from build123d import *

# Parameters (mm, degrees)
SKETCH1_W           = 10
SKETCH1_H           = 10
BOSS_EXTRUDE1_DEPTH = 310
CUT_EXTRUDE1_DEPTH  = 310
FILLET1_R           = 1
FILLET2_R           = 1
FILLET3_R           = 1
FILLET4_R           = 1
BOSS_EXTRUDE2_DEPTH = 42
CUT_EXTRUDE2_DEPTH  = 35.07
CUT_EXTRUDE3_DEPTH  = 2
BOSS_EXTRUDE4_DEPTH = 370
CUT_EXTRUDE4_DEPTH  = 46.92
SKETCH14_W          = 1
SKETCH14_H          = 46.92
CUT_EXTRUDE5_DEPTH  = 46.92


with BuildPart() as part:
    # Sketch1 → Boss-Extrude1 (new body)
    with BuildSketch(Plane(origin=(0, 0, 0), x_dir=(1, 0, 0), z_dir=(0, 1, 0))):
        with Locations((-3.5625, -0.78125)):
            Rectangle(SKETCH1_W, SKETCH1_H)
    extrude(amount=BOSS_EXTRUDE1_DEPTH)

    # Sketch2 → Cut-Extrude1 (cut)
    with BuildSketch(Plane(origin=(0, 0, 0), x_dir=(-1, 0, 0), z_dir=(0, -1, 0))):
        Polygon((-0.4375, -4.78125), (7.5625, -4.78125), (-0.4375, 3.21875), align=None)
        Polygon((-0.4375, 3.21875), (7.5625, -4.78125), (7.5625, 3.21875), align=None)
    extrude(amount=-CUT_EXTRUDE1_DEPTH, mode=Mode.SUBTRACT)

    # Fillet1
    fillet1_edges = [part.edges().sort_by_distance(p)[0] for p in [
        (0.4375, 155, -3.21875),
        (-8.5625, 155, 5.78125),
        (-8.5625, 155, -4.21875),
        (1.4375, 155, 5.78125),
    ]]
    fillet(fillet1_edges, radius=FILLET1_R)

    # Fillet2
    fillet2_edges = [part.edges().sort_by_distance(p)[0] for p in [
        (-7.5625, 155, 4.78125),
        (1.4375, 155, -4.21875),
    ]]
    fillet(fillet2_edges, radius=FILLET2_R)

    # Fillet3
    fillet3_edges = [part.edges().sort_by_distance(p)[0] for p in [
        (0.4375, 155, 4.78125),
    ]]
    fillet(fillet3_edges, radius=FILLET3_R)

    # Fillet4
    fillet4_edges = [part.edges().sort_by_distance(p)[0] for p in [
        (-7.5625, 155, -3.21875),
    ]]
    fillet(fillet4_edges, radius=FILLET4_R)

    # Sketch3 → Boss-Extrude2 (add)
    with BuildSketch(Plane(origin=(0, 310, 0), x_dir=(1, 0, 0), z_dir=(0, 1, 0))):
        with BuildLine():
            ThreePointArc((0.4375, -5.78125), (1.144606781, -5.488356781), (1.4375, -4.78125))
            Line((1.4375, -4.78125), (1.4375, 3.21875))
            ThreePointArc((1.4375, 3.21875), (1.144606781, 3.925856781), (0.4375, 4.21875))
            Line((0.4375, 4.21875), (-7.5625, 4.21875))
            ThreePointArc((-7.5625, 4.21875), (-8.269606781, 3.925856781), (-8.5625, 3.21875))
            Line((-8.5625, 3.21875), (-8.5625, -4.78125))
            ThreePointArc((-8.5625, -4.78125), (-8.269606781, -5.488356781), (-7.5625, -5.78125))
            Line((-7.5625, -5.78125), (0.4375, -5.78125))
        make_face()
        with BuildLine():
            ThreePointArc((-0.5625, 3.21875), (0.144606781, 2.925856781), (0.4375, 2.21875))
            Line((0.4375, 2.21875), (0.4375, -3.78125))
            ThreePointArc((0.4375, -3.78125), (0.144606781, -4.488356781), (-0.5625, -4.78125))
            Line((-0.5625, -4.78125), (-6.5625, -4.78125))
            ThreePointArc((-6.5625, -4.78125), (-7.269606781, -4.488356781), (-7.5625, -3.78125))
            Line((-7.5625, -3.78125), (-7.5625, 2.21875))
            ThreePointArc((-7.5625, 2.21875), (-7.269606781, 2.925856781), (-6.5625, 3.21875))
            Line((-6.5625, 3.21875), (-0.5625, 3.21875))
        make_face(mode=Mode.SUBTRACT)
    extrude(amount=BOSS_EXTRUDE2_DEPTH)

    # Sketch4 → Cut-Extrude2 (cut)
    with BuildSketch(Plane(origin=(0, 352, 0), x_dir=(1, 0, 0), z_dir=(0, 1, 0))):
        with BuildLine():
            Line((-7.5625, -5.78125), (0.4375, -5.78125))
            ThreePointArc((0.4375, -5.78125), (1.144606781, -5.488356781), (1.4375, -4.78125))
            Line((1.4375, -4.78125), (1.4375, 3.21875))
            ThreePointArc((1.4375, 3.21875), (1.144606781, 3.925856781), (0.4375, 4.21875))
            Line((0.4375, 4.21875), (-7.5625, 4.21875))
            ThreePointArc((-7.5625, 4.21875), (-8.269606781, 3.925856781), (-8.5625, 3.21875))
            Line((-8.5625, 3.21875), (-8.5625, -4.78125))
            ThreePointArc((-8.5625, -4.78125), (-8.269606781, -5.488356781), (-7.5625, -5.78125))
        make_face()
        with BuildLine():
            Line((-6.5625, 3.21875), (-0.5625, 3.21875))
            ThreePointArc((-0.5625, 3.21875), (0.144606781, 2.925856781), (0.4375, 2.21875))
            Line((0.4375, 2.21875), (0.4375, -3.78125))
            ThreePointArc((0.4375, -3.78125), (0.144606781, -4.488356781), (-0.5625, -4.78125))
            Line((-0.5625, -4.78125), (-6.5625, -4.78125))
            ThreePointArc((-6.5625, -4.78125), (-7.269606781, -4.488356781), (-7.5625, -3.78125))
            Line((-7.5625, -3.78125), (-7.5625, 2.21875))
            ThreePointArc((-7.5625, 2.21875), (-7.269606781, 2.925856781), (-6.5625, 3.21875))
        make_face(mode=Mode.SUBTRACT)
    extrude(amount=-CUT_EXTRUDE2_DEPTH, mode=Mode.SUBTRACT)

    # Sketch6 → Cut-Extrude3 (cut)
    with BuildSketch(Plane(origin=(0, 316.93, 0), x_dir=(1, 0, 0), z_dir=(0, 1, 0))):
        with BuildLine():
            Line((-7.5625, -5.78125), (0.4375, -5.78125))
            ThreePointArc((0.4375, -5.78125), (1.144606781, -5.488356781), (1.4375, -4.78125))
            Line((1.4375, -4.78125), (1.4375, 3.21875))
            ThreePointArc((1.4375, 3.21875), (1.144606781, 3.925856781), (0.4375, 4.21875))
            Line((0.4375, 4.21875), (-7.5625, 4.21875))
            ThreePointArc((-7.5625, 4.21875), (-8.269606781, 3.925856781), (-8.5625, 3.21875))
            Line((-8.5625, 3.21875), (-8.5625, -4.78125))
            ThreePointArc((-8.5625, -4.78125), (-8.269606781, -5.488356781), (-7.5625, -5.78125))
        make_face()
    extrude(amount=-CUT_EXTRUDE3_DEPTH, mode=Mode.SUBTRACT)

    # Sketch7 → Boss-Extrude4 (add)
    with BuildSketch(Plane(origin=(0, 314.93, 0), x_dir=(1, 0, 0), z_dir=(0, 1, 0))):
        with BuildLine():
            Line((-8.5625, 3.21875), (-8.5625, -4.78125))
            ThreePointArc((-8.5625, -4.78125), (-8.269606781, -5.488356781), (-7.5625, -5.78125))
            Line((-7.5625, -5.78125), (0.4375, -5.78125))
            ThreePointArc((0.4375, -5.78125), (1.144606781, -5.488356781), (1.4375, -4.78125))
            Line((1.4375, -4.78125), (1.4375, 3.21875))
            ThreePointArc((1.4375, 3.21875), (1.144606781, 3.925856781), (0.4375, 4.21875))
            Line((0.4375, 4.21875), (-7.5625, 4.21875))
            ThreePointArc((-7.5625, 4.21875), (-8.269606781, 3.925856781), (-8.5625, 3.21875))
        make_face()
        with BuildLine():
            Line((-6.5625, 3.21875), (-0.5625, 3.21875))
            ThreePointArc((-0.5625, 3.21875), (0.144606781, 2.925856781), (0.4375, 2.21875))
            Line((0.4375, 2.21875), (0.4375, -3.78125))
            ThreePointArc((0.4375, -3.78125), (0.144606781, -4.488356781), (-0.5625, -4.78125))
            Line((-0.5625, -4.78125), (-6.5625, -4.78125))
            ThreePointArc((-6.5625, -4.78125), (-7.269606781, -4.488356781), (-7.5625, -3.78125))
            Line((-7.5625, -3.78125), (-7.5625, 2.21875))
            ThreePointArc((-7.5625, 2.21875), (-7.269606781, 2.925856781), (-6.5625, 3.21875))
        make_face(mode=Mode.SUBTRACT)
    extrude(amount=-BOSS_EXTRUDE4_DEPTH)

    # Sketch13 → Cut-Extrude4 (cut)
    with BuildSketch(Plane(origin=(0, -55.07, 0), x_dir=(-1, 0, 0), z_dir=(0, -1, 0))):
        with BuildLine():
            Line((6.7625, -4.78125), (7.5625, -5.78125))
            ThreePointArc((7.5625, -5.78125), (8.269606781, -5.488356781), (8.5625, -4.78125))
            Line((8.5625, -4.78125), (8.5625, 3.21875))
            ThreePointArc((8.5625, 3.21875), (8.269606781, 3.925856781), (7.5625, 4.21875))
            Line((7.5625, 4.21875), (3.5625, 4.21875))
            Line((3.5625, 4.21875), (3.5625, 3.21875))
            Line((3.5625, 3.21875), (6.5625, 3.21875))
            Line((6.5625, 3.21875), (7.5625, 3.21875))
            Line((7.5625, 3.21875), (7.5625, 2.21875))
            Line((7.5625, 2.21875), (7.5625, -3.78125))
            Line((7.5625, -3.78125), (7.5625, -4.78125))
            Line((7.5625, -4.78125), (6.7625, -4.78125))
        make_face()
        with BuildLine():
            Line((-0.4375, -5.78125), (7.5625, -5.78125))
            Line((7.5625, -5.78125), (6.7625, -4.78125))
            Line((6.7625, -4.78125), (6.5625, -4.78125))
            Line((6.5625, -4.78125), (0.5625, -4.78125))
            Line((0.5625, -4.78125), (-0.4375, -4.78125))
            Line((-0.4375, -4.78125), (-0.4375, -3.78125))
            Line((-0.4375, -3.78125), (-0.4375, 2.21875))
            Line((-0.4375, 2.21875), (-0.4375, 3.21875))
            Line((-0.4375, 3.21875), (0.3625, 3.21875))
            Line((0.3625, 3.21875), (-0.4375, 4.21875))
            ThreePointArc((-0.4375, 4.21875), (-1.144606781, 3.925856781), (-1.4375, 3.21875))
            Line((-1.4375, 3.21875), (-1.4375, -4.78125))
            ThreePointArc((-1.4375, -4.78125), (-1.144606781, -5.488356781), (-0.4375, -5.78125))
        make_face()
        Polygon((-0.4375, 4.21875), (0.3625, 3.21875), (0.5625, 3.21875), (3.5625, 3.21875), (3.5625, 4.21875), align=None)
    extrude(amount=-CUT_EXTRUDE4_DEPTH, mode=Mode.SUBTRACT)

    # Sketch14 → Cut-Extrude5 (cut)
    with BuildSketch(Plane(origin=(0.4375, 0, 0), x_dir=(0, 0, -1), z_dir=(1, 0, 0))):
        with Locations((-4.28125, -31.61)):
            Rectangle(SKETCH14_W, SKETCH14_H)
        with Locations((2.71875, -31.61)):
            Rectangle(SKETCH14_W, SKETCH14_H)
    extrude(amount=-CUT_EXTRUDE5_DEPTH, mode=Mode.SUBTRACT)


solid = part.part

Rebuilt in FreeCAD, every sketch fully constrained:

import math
import FreeCAD as App
import Part
import Sketcher

V = App.Vector
Q = App.Units.Quantity


def edges_at(feature, points):
    """Names of the edges that pass closest to the given points."""
    edges = feature.Shape.Edges
    near = lambda p: min(range(len(edges)), key=lambda i: edges[i].distToShape(Part.Vertex(*p))[0])
    return sorted({f"Edge{near(p) + 1}" for p in points})

doc = App.newDocument("Part")
body = doc.addObject("PartDesign::Body", "Body")

# Sketch on XZ plane
sketch1 = body.newObject("Sketcher::SketchObject", "Sketch")
sketch1.AttachmentSupport = (doc.getObject("XZ_Plane"), [""])
sketch1.MapMode = "FlatFace"
sketch1.addGeometry([
    Part.LineSegment(V(-9, -4, 0), V(-9, 6, 0)),
    Part.LineSegment(V(-9, 6, 0), V(1, 6, 0)),
    Part.LineSegment(V(1, 6, 0), V(1, -4, 0)),
    Part.LineSegment(V(1, -4, 0), V(-9, -4, 0)),
], False)
sketch1.addConstraint([
    Sketcher.Constraint("Coincident", 0, 2, 1, 1),
    Sketcher.Constraint("Coincident", 1, 2, 2, 1),
    Sketcher.Constraint("Coincident", 2, 2, 3, 1),
    Sketcher.Constraint("Coincident", 3, 2, 0, 1),
    Sketcher.Constraint("Vertical", 0),
    Sketcher.Constraint("Horizontal", 1),
    Sketcher.Constraint("Vertical", 2),
    Sketcher.Constraint("Horizontal", 3),
    Sketcher.Constraint("Equal", 3, 0),
    Sketcher.Constraint("DistanceX", 1, 1, 1, 2, Q("10 mm")),
    Sketcher.Constraint("DistanceX", 0, 2, -1, 1, Q("8.5625 mm")),
    Sketcher.Constraint("DistanceY", -1, 1, 0, 2, Q("5.78125 mm")),
])
pad1 = body.newObject("PartDesign::Pad", "Pad")
pad1.Profile = sketch1
pad1.Length = 310
pad1.Reversed = True

# Sketch on XZ plane
sketch2 = body.newObject("Sketcher::SketchObject", "Sketch001")
sketch2.AttachmentSupport = (doc.getObject("XZ_Plane"), [""])
sketch2.MapMode = "FlatFace"
sketch2.addGeometry([
    Part.LineSegment(V(0, 5, 0), V(-8, 5, 0)),
    Part.LineSegment(V(-8, 5, 0), V(-8, -3, 0)),
    Part.LineSegment(V(-8, -3, 0), V(0, -3, 0)),
    Part.LineSegment(V(0, -3, 0), V(0, 5, 0)),
], False)
sketch2.addConstraint([
    Sketcher.Constraint("Coincident", 0, 2, 1, 1),
    Sketcher.Constraint("Coincident", 1, 2, 2, 1),
    Sketcher.Constraint("Coincident", 2, 2, 3, 1),
    Sketcher.Constraint("Coincident", 3, 2, 0, 1),
    Sketcher.Constraint("Horizontal", 0),
    Sketcher.Constraint("Vertical", 1),
    Sketcher.Constraint("Horizontal", 2),
    Sketcher.Constraint("Vertical", 3),
    Sketcher.Constraint("Equal", 2, 1),
    Sketcher.Constraint("DistanceX", 0, 2, 0, 1, Q("8 mm")),
    Sketcher.Constraint("DistanceX", 0, 2, -1, 1, Q("7.5625 mm")),
    Sketcher.Constraint("DistanceY", -1, 1, 0, 2, Q("4.78125 mm")),
])
pocket1 = body.newObject("PartDesign::Pocket", "Pocket")
pocket1.Profile = sketch2
pocket1.Length = 310
doc.recompute()

fillet = body.newObject("PartDesign::Fillet", "Fillet")
fillet.Base = (pocket1, edges_at(pocket1, [
    (0.438, 155, -3.219),
    (-8.562, 155, 5.781),
    (-8.562, 155, -4.219),
    (1.438, 155, 5.781),
]))
fillet.Radius = 1
doc.recompute()

fillet2 = body.newObject("PartDesign::Fillet", "Fillet001")
fillet2.Base = (fillet, edges_at(fillet, [(-7.562, 155, 4.781), (1.438, 155, -4.219)]))
fillet2.Radius = 1
doc.recompute()

fillet3 = body.newObject("PartDesign::Fillet", "Fillet002")
fillet3.Base = (fillet2, edges_at(fillet2, [(0.438, 155, 4.781)]))
fillet3.Radius = 1
doc.recompute()

fillet4 = body.newObject("PartDesign::Fillet", "Fillet003")
fillet4.Base = (fillet3, edges_at(fillet3, [(-7.562, 155, -3.219)]))
fillet4.Radius = 1

# Sketch on XZ plane
sketch3 = body.newObject("Sketcher::SketchObject", "Sketch002")
sketch3.AttachmentSupport = (doc.getObject("XZ_Plane"), [""])
sketch3.MapMode = "FlatFace"
sketch3.AttachmentOffset = App.Placement(V(0, 0, -310), App.Rotation())
sketch3.addGeometry([
    Part.ArcOfCircle(Part.Circle(V(0.4, 4.8, 0), V(0, 0, 1), 1), math.radians(0), math.radians(90)),  # 0
    Part.LineSegment(V(1.4, 4.8, 0), V(1.4, -3.2, 0)),  # 1
    Part.ArcOfCircle(Part.Circle(V(0.4, -3.2, 0), V(0, 0, 1), 1), math.radians(-90), math.radians(0)),  # 2
    Part.LineSegment(V(0.4, -4.2, 0), V(-7.6, -4.2, 0)),  # 3
    Part.ArcOfCircle(Part.Circle(V(-7.6, -3.2, 0), V(0, 0, 1), 1), math.radians(-180), math.radians(-90)),  # 4
    Part.LineSegment(V(-8.6, -3.2, 0), V(-8.6, 4.8, 0)),  # 5
    Part.ArcOfCircle(Part.Circle(V(-7.6, 4.8, 0), V(0, 0, 1), 1), math.radians(90), math.radians(180)),  # 6
    Part.LineSegment(V(-7.6, 5.8, 0), V(0.4, 5.8, 0)),  # 7
    Part.LineSegment(V(-6.6, -3.2, 0), V(-0.6, -3.2, 0)),  # 8
    Part.ArcOfCircle(Part.Circle(V(-0.6, -2.2, 0), V(0, 0, 1), 1), math.radians(-90), math.radians(0)),  # 9
    Part.LineSegment(V(0.4, -2.2, 0), V(0.4, 3.8, 0)),  # 10
    Part.ArcOfCircle(Part.Circle(V(-0.6, 3.8, 0), V(0, 0, 1), 1), math.radians(0), math.radians(90)),  # 11
    Part.LineSegment(V(-0.6, 4.8, 0), V(-6.6, 4.8, 0)),  # 12
    Part.ArcOfCircle(Part.Circle(V(-6.6, 3.8, 0), V(0, 0, 1), 1), math.radians(90), math.radians(180)),  # 13
    Part.LineSegment(V(-7.6, 3.8, 0), V(-7.6, -2.2, 0)),  # 14
    Part.ArcOfCircle(Part.Circle(V(-6.6, -2.2, 0), V(0, 0, 1), 1), math.radians(-180), math.radians(-90)),  # 15
], False)
sketch3.addConstraint([
    Sketcher.Constraint("Tangent", 0, 1, 1, 1),
    Sketcher.Constraint("Tangent", 1, 2, 2, 2),
    Sketcher.Constraint("Tangent", 2, 1, 3, 1),
    Sketcher.Constraint("Tangent", 3, 2, 4, 2),
    Sketcher.Constraint("Tangent", 4, 1, 5, 1),
    Sketcher.Constraint("Tangent", 5, 2, 6, 2),
    Sketcher.Constraint("Tangent", 6, 1, 7, 1),
    Sketcher.Constraint("Tangent", 7, 2, 0, 2),
    Sketcher.Constraint("Tangent", 8, 2, 9, 1),
    Sketcher.Constraint("Tangent", 9, 2, 10, 1),
    Sketcher.Constraint("Tangent", 10, 2, 11, 1),
    Sketcher.Constraint("Tangent", 11, 2, 12, 1),
    Sketcher.Constraint("Tangent", 12, 2, 13, 1),
    Sketcher.Constraint("Tangent", 13, 2, 14, 1),
    Sketcher.Constraint("Tangent", 14, 2, 15, 1),
    Sketcher.Constraint("Tangent", 15, 2, 8, 1),
    Sketcher.Constraint("Vertical", 1),
    Sketcher.Constraint("Horizontal", 3),
    Sketcher.Constraint("Vertical", 5),
    Sketcher.Constraint("Horizontal", 7),
    Sketcher.Constraint("Horizontal", 8),
    Sketcher.Constraint("Vertical", 10),
    Sketcher.Constraint("Horizontal", 12),
    Sketcher.Constraint("Vertical", 14),
    Sketcher.Constraint("Equal", 0, 2),
    Sketcher.Constraint("Equal", 2, 4),
    Sketcher.Constraint("Equal", 4, 6),
    Sketcher.Constraint("Equal", 6, 9),
    Sketcher.Constraint("Equal", 9, 11),
    Sketcher.Constraint("Equal", 11, 13),
    Sketcher.Constraint("Equal", 13, 15),
    Sketcher.Constraint("Horizontal", 4, 1, 8, 2),
    Sketcher.Constraint("Horizontal", 5, 2, 11, 2),
    Sketcher.Constraint("Vertical", 7, 2, 9, 2),
    Sketcher.Constraint("Vertical", 6, 1, 13, 2),
    Sketcher.Constraint("Equal", 7, 1),
    Sketcher.Constraint("Radius", 0, Q("1 mm")),
    Sketcher.Constraint("DistanceX", 3, 2, 3, 1, Q("8 mm")),
    Sketcher.Constraint("DistanceX", -1, 1, 0, 3, Q("0.4375 mm")),
    Sketcher.Constraint("DistanceY", -1, 1, 0, 3, Q("4.78125 mm")),
])
pad2 = body.newObject("PartDesign::Pad", "Pad001")
pad2.Profile = sketch3
pad2.Length = 42
pad2.Reversed = True

# Sketch on XZ plane
sketch4 = body.newObject("Sketcher::SketchObject", "Sketch003")
sketch4.AttachmentSupport = (doc.getObject("XZ_Plane"), [""])
sketch4.MapMode = "FlatFace"
sketch4.AttachmentOffset = App.Placement(V(0, 0, -352), App.Rotation())
sketch4.addGeometry([
    Part.LineSegment(V(-7.6, 5.8, 0), V(0.4, 5.8, 0)),  # 0
    Part.ArcOfCircle(Part.Circle(V(0.4, 4.8, 0), V(0, 0, 1), 1), math.radians(0), math.radians(90)),  # 1
    Part.LineSegment(V(1.4, 4.8, 0), V(1.4, -3.2, 0)),  # 2
    Part.ArcOfCircle(Part.Circle(V(0.4, -3.2, 0), V(0, 0, 1), 1), math.radians(-90), math.radians(0)),  # 3
    Part.LineSegment(V(0.4, -4.2, 0), V(-7.6, -4.2, 0)),  # 4
    Part.ArcOfCircle(Part.Circle(V(-7.6, -3.2, 0), V(0, 0, 1), 1), math.radians(-180), math.radians(-90)),  # 5
    Part.LineSegment(V(-8.6, -3.2, 0), V(-8.6, 4.8, 0)),  # 6
    Part.ArcOfCircle(Part.Circle(V(-7.6, 4.8, 0), V(0, 0, 1), 1), math.radians(90), math.radians(180)),  # 7
    Part.ArcOfCircle(Part.Circle(V(-6.6, -2.2, 0), V(0, 0, 1), 1), math.radians(-180), math.radians(-90)),  # 8
    Part.LineSegment(V(-6.6, -3.2, 0), V(-0.6, -3.2, 0)),  # 9
    Part.ArcOfCircle(Part.Circle(V(-0.6, -2.2, 0), V(0, 0, 1), 1), math.radians(-90), math.radians(0)),  # 10
    Part.LineSegment(V(0.4, -2.2, 0), V(0.4, 3.8, 0)),  # 11
    Part.ArcOfCircle(Part.Circle(V(-0.6, 3.8, 0), V(0, 0, 1), 1), math.radians(0), math.radians(90)),  # 12
    Part.LineSegment(V(-0.6, 4.8, 0), V(-6.6, 4.8, 0)),  # 13
    Part.ArcOfCircle(Part.Circle(V(-6.6, 3.8, 0), V(0, 0, 1), 1), math.radians(90), math.radians(180)),  # 14
    Part.LineSegment(V(-7.6, 3.8, 0), V(-7.6, -2.2, 0)),  # 15
], False)
sketch4.addConstraint([
    Sketcher.Constraint("Tangent", 0, 2, 1, 2),
    Sketcher.Constraint("Tangent", 1, 1, 2, 1),
    Sketcher.Constraint("Tangent", 2, 2, 3, 2),
    Sketcher.Constraint("Tangent", 3, 1, 4, 1),
    Sketcher.Constraint("Tangent", 4, 2, 5, 2),
    Sketcher.Constraint("Tangent", 5, 1, 6, 1),
    Sketcher.Constraint("Tangent", 6, 2, 7, 2),
    Sketcher.Constraint("Tangent", 7, 1, 0, 1),
    Sketcher.Constraint("Tangent", 8, 2, 9, 1),
    Sketcher.Constraint("Tangent", 9, 2, 10, 1),
    Sketcher.Constraint("Tangent", 10, 2, 11, 1),
    Sketcher.Constraint("Tangent", 11, 2, 12, 1),
    Sketcher.Constraint("Tangent", 12, 2, 13, 1),
    Sketcher.Constraint("Tangent", 13, 2, 14, 1),
    Sketcher.Constraint("Tangent", 14, 2, 15, 1),
    Sketcher.Constraint("Tangent", 15, 2, 8, 1),
    Sketcher.Constraint("Horizontal", 0),
    Sketcher.Constraint("Vertical", 2),
    Sketcher.Constraint("Horizontal", 4),
    Sketcher.Constraint("Vertical", 6),
    Sketcher.Constraint("Horizontal", 9),
    Sketcher.Constraint("Vertical", 11),
    Sketcher.Constraint("Horizontal", 13),
    Sketcher.Constraint("Vertical", 15),
    Sketcher.Constraint("Equal", 1, 3),
    Sketcher.Constraint("Equal", 3, 5),
    Sketcher.Constraint("Equal", 5, 7),
    Sketcher.Constraint("Equal", 7, 8),
    Sketcher.Constraint("Equal", 8, 10),
    Sketcher.Constraint("Equal", 10, 12),
    Sketcher.Constraint("Equal", 12, 14),
    Sketcher.Constraint("Horizontal", 5, 1, 8, 2),
    Sketcher.Constraint("Horizontal", 6, 2, 12, 2),
    Sketcher.Constraint("Vertical", 3, 1, 10, 2),
    Sketcher.Constraint("Vertical", 7, 1, 14, 2),
    Sketcher.Constraint("Equal", 4, 2),
    Sketcher.Constraint("Radius", 1, Q("1 mm")),
    Sketcher.Constraint("DistanceX", 0, 1, 0, 2, Q("8 mm")),
    Sketcher.Constraint("DistanceX", -1, 1, 1, 3, Q("0.4375 mm")),
    Sketcher.Constraint("DistanceY", -1, 1, 1, 3, Q("4.78125 mm")),
])
pocket2 = body.newObject("PartDesign::Pocket", "Pocket001")
pocket2.Profile = sketch4
pocket2.Length = 35.07
pocket2.Reversed = True

# Sketch on XZ plane
sketch5 = body.newObject("Sketcher::SketchObject", "Sketch004")
sketch5.AttachmentSupport = (doc.getObject("XZ_Plane"), [""])
sketch5.MapMode = "FlatFace"
sketch5.AttachmentOffset = App.Placement(V(0, 0, -316.93), App.Rotation())
sketch5.addGeometry([
    Part.LineSegment(V(-7.6, 5.8, 0), V(0.4, 5.8, 0)),  # 0
    Part.ArcOfCircle(Part.Circle(V(0.4, 4.8, 0), V(0, 0, 1), 1), math.radians(0), math.radians(90)),  # 1
    Part.LineSegment(V(1.4, 4.8, 0), V(1.4, -3.2, 0)),  # 2
    Part.ArcOfCircle(Part.Circle(V(0.4, -3.2, 0), V(0, 0, 1), 1), math.radians(-90), math.radians(0)),  # 3
    Part.LineSegment(V(0.4, -4.2, 0), V(-7.6, -4.2, 0)),  # 4
    Part.ArcOfCircle(Part.Circle(V(-7.6, -3.2, 0), V(0, 0, 1), 1), math.radians(-180), math.radians(-90)),  # 5
    Part.LineSegment(V(-8.6, -3.2, 0), V(-8.6, 4.8, 0)),  # 6
    Part.ArcOfCircle(Part.Circle(V(-7.6, 4.8, 0), V(0, 0, 1), 1), math.radians(90), math.radians(180)),  # 7
], False)
sketch5.addConstraint([
    Sketcher.Constraint("Tangent", 0, 2, 1, 2),
    Sketcher.Constraint("Tangent", 1, 1, 2, 1),
    Sketcher.Constraint("Tangent", 2, 2, 3, 2),
    Sketcher.Constraint("Tangent", 3, 1, 4, 1),
    Sketcher.Constraint("Tangent", 4, 2, 5, 2),
    Sketcher.Constraint("Tangent", 5, 1, 6, 1),
    Sketcher.Constraint("Tangent", 6, 2, 7, 2),
    Sketcher.Constraint("Tangent", 7, 1, 0, 1),
    Sketcher.Constraint("Horizontal", 0),
    Sketcher.Constraint("Vertical", 2),
    Sketcher.Constraint("Horizontal", 4),
    Sketcher.Constraint("Vertical", 6),
    Sketcher.Constraint("Equal", 1, 3),
    Sketcher.Constraint("Equal", 3, 5),
    Sketcher.Constraint("Equal", 5, 7),
    Sketcher.Constraint("Equal", 4, 2),
    Sketcher.Constraint("Radius", 1, Q("1 mm")),
    Sketcher.Constraint("DistanceX", 0, 1, 0, 2, Q("8 mm")),
    Sketcher.Constraint("DistanceX", -1, 1, 1, 3, Q("0.4375 mm")),
    Sketcher.Constraint("DistanceY", -1, 1, 1, 3, Q("4.78125 mm")),
])
pocket3 = body.newObject("PartDesign::Pocket", "Pocket002")
pocket3.Profile = sketch5
pocket3.Length = 2
pocket3.Reversed = True

# Sketch on XZ plane
sketch6 = body.newObject("Sketcher::SketchObject", "Sketch005")
sketch6.AttachmentSupport = (doc.getObject("XZ_Plane"), [""])
sketch6.MapMode = "FlatFace"
sketch6.AttachmentOffset = App.Placement(V(0, 0, -314.93), App.Rotation())
sketch6.addGeometry([
    Part.LineSegment(V(-8.6, -3.2, 0), V(-8.6, 4.8, 0)),  # 0
    Part.ArcOfCircle(Part.Circle(V(-7.6, 4.8, 0), V(0, 0, 1), 1), math.radians(90), math.radians(180)),  # 1
    Part.LineSegment(V(-7.6, 5.8, 0), V(0.4, 5.8, 0)),  # 2
    Part.ArcOfCircle(Part.Circle(V(0.4, 4.8, 0), V(0, 0, 1), 1), math.radians(0), math.radians(90)),  # 3
    Part.LineSegment(V(1.4, 4.8, 0), V(1.4, -3.2, 0)),  # 4
    Part.ArcOfCircle(Part.Circle(V(0.4, -3.2, 0), V(0, 0, 1), 1), math.radians(-90), math.radians(0)),  # 5
    Part.LineSegment(V(0.4, -4.2, 0), V(-7.6, -4.2, 0)),  # 6
    Part.ArcOfCircle(Part.Circle(V(-7.6, -3.2, 0), V(0, 0, 1), 1), math.radians(-180), math.radians(-90)),  # 7
    Part.ArcOfCircle(Part.Circle(V(-6.6, -2.2, 0), V(0, 0, 1), 1), math.radians(-180), math.radians(-90)),  # 8
    Part.LineSegment(V(-6.6, -3.2, 0), V(-0.6, -3.2, 0)),  # 9
    Part.ArcOfCircle(Part.Circle(V(-0.6, -2.2, 0), V(0, 0, 1), 1), math.radians(-90), math.radians(0)),  # 10
    Part.LineSegment(V(0.4, -2.2, 0), V(0.4, 3.8, 0)),  # 11
    Part.ArcOfCircle(Part.Circle(V(-0.6, 3.8, 0), V(0, 0, 1), 1), math.radians(0), math.radians(90)),  # 12
    Part.LineSegment(V(-0.6, 4.8, 0), V(-6.6, 4.8, 0)),  # 13
    Part.ArcOfCircle(Part.Circle(V(-6.6, 3.8, 0), V(0, 0, 1), 1), math.radians(90), math.radians(180)),  # 14
    Part.LineSegment(V(-7.6, 3.8, 0), V(-7.6, -2.2, 0)),  # 15
], False)
sketch6.addConstraint([
    Sketcher.Constraint("Tangent", 0, 2, 1, 2),
    Sketcher.Constraint("Tangent", 1, 1, 2, 1),
    Sketcher.Constraint("Tangent", 2, 2, 3, 2),
    Sketcher.Constraint("Tangent", 3, 1, 4, 1),
    Sketcher.Constraint("Tangent", 4, 2, 5, 2),
    Sketcher.Constraint("Tangent", 5, 1, 6, 1),
    Sketcher.Constraint("Tangent", 6, 2, 7, 2),
    Sketcher.Constraint("Tangent", 7, 1, 0, 1),
    Sketcher.Constraint("Tangent", 8, 2, 9, 1),
    Sketcher.Constraint("Tangent", 9, 2, 10, 1),
    Sketcher.Constraint("Tangent", 10, 2, 11, 1),
    Sketcher.Constraint("Tangent", 11, 2, 12, 1),
    Sketcher.Constraint("Tangent", 12, 2, 13, 1),
    Sketcher.Constraint("Tangent", 13, 2, 14, 1),
    Sketcher.Constraint("Tangent", 14, 2, 15, 1),
    Sketcher.Constraint("Tangent", 15, 2, 8, 1),
    Sketcher.Constraint("Vertical", 0),
    Sketcher.Constraint("Horizontal", 2),
    Sketcher.Constraint("Vertical", 4),
    Sketcher.Constraint("Horizontal", 6),
    Sketcher.Constraint("Horizontal", 9),
    Sketcher.Constraint("Vertical", 11),
    Sketcher.Constraint("Horizontal", 13),
    Sketcher.Constraint("Vertical", 15),
    Sketcher.Constraint("Equal", 1, 3),
    Sketcher.Constraint("Equal", 3, 5),
    Sketcher.Constraint("Equal", 5, 7),
    Sketcher.Constraint("Equal", 7, 8),
    Sketcher.Constraint("Equal", 8, 10),
    Sketcher.Constraint("Equal", 10, 12),
    Sketcher.Constraint("Equal", 12, 14),
    Sketcher.Constraint("Horizontal", 7, 1, 8, 2),
    Sketcher.Constraint("Horizontal", 3, 1, 12, 2),
    Sketcher.Constraint("Vertical", 5, 1, 10, 2),
    Sketcher.Constraint("Vertical", 6, 2, 14, 2),
    Sketcher.Constraint("Equal", 6, 0),
    Sketcher.Constraint("Radius", 1, Q("1 mm")),
    Sketcher.Constraint("DistanceX", 2, 1, 2, 2, Q("8 mm")),
    Sketcher.Constraint("DistanceX", 1, 3, -1, 1, Q("7.5625 mm")),
    Sketcher.Constraint("DistanceY", -1, 1, 1, 3, Q("4.78125 mm")),
])
pad3 = body.newObject("PartDesign::Pad", "Pad002")
pad3.Profile = sketch6
pad3.Length = 370

# Sketch on XZ plane
sketch7 = body.newObject("Sketcher::SketchObject", "Sketch006")
sketch7.AttachmentSupport = (doc.getObject("XZ_Plane"), [""])
sketch7.MapMode = "FlatFace"
sketch7.AttachmentOffset = App.Placement(V(0, 0, 55.07), App.Rotation())
sketch7.addGeometry([
    Part.ArcOfCircle(Part.Circle(V(-7.6, 4.8, 0), V(0, 0, 1), 1), math.radians(90), math.radians(180)),  # 0
    Part.LineSegment(V(-8.6, 4.8, 0), V(-8.6, -3.2, 0)),  # 1
    Part.ArcOfCircle(Part.Circle(V(-7.6, -3.2, 0), V(0, 0, 1), 1), math.radians(-180), math.radians(-90)),  # 2
    Part.LineSegment(V(-7.6, -4.2, 0), V(0.4, -4.2, 0)),  # 3
    Part.ArcOfCircle(Part.Circle(V(0.4, -3.2, 0), V(0, 0, 1), 1), math.radians(-90), math.radians(0)),  # 4
    Part.LineSegment(V(1.4, -3.2, 0), V(1.4, 4.8, 0)),  # 5
    Part.ArcOfCircle(Part.Circle(V(0.4, 4.8, 0), V(0, 0, 1), 1), math.radians(0), math.radians(90)),  # 6
    Part.LineSegment(V(0.4, 5.8, 0), V(-7.6, 5.8, 0)),  # 7
    Part.LineSegment(V(-7.6, -3.2, 0), V(-7.6, 4.8, 0)),  # 8
    Part.LineSegment(V(-7.6, 4.8, 0), V(0.4, 4.8, 0)),  # 9
    Part.LineSegment(V(0.4, 4.8, 0), V(0.4, -3.2, 0)),  # 10
    Part.LineSegment(V(0.4, -3.2, 0), V(-7.6, -3.2, 0)),  # 11
], False)
sketch7.addConstraint([
    Sketcher.Constraint("Tangent", 0, 2, 1, 1),
    Sketcher.Constraint("Tangent", 1, 2, 2, 1),
    Sketcher.Constraint("Tangent", 2, 2, 3, 1),
    Sketcher.Constraint("Tangent", 3, 2, 4, 1),
    Sketcher.Constraint("Tangent", 4, 2, 5, 1),
    Sketcher.Constraint("Tangent", 5, 2, 6, 1),
    Sketcher.Constraint("Tangent", 6, 2, 7, 1),
    Sketcher.Constraint("Tangent", 7, 2, 0, 1),
    Sketcher.Constraint("Coincident", 8, 2, 9, 1),
    Sketcher.Constraint("Coincident", 9, 2, 10, 1),
    Sketcher.Constraint("Coincident", 10, 2, 11, 1),
    Sketcher.Constraint("Coincident", 11, 2, 8, 1),
    Sketcher.Constraint("Vertical", 1),
    Sketcher.Constraint("Horizontal", 3),
    Sketcher.Constraint("Vertical", 5),
    Sketcher.Constraint("Horizontal", 7),
    Sketcher.Constraint("Vertical", 8),
    Sketcher.Constraint("Horizontal", 9),
    Sketcher.Constraint("Vertical", 10),
    Sketcher.Constraint("Horizontal", 11),
    Sketcher.Constraint("Coincident", 8, 2, 0, 3),
    Sketcher.Constraint("Coincident", 9, 2, 6, 3),
    Sketcher.Constraint("Coincident", 10, 2, 4, 3),
    Sketcher.Constraint("Equal", 0, 2),
    Sketcher.Constraint("Equal", 11, 1),
    Sketcher.Constraint("Radius", 0, Q("1 mm")),
    Sketcher.Constraint("DistanceX", 3, 1, 3, 2, Q("8 mm")),
    Sketcher.Constraint("DistanceX", 0, 3, -1, 1, Q("7.5625 mm")),
    Sketcher.Constraint("DistanceY", -1, 1, 0, 3, Q("4.78125 mm")),
])
pocket4 = body.newObject("PartDesign::Pocket", "Pocket003")
pocket4.Profile = sketch7
pocket4.Length = 46.92

# Sketch on YZ plane
sketch8 = body.newObject("Sketcher::SketchObject", "Sketch007")
sketch8.AttachmentSupport = (doc.getObject("YZ_Plane"), [""])
sketch8.MapMode = "FlatFace"
sketch8.AttachmentOffset = App.Placement(V(0, 0, 0.4375), App.Rotation())
sketch8.addGeometry([
    Part.LineSegment(V(-8.2, 4.8, 0), V(-55.1, 4.8, 0)),  # 0
    Part.LineSegment(V(-55.1, 4.8, 0), V(-55.1, 3.8, 0)),  # 1
    Part.LineSegment(V(-55.1, 3.8, 0), V(-8.2, 3.8, 0)),  # 2
    Part.LineSegment(V(-8.2, 3.8, 0), V(-8.2, 4.8, 0)),  # 3
    Part.LineSegment(V(-8.2, -2.2, 0), V(-55.1, -2.2, 0)),  # 4
    Part.LineSegment(V(-55.1, -2.2, 0), V(-55.1, -3.2, 0)),  # 5
    Part.LineSegment(V(-55.1, -3.2, 0), V(-8.2, -3.2, 0)),  # 6
    Part.LineSegment(V(-8.2, -3.2, 0), V(-8.2, -2.2, 0)),  # 7
], False)
sketch8.addConstraint([
    Sketcher.Constraint("Coincident", 0, 2, 1, 1),
    Sketcher.Constraint("Coincident", 1, 2, 2, 1),
    Sketcher.Constraint("Coincident", 2, 2, 3, 1),
    Sketcher.Constraint("Coincident", 3, 2, 0, 1),
    Sketcher.Constraint("Coincident", 4, 2, 5, 1),
    Sketcher.Constraint("Coincident", 5, 2, 6, 1),
    Sketcher.Constraint("Coincident", 6, 2, 7, 1),
    Sketcher.Constraint("Coincident", 7, 2, 4, 1),
    Sketcher.Constraint("Horizontal", 0),
    Sketcher.Constraint("Vertical", 1),
    Sketcher.Constraint("Horizontal", 2),
    Sketcher.Constraint("Vertical", 3),
    Sketcher.Constraint("Horizontal", 4),
    Sketcher.Constraint("Vertical", 5),
    Sketcher.Constraint("Horizontal", 6),
    Sketcher.Constraint("Vertical", 7),
    Sketcher.Constraint("Vertical", 1, 2, 4, 2),
    Sketcher.Constraint("Vertical", 3, 2, 6, 2),
    Sketcher.Constraint("Equal", 3, 5),
    Sketcher.Constraint("DistanceY", 1, 2, 1, 1, Q("1 mm")),
    Sketcher.Constraint("DistanceY", 4, 2, 1, 2, Q("6 mm")),
    Sketcher.Constraint("DistanceX", 0, 2, 0, 1, Q("46.92 mm")),
    Sketcher.Constraint("DistanceX", 0, 2, -1, 1, Q("55.07 mm")),
    Sketcher.Constraint("DistanceY", -1, 1, 0, 2, Q("4.78125 mm")),
])
pocket5 = body.newObject("PartDesign::Pocket", "Pocket004")
pocket5.Profile = sketch8
pocket5.Length = 46.92

doc.recompute()
